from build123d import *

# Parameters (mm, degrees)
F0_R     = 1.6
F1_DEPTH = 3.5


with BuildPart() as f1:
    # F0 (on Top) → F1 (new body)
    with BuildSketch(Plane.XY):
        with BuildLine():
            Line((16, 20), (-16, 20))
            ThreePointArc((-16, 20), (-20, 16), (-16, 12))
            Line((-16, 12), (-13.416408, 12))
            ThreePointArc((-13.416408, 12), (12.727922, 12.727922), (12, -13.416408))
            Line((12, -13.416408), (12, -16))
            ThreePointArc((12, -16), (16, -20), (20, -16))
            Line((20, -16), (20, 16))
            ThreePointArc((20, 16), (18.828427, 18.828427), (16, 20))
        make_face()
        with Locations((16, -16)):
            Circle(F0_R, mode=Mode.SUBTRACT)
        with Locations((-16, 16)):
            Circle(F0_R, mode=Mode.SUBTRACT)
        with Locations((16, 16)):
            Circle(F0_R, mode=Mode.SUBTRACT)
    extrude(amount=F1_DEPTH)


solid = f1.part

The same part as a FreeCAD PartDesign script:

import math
import FreeCAD as App
import Part
import Sketcher

doc = App.newDocument("Part")
body = doc.addObject("PartDesign::Body", "Body")

# Sketch on XY plane
sketch1 = body.newObject("Sketcher::SketchObject", "Sketch")
sketch1.AttachmentSupport = (doc.getObject("XY_Plane"), [""])
sketch1.MapMode = "FlatFace"
sketch1.addGeometry(Part.LineSegment(App.Vector(16, 20, 0), App.Vector(-16, 20, 0)), False)
sketch1.addGeometry(Part.ArcOfCircle(Part.Circle(App.Vector(-16, 16, 0), App.Vector(0, 0, 1), 4), math.radians(90), math.radians(270)), False)
sketch1.addGeometry(Part.LineSegment(App.Vector(-16, 12, 0), App.Vector(-13.4, 12, 0)), False)
sketch1.addGeometry(Part.ArcOfCircle(Part.Circle(App.Vector(0, 0, 0), App.Vector(0, 0, 1), 18), math.radians(-48), math.radians(138)), False)
sketch1.addGeometry(Part.LineSegment(App.Vector(12, -13.4, 0), App.Vector(12, -16, 0)), False)
sketch1.addGeometry(Part.ArcOfCircle(Part.Circle(App.Vector(16, -16, 0), App.Vector(0, 0, 1), 4), math.radians(180), math.radians(360)), False)
sketch1.addGeometry(Part.LineSegment(App.Vector(20, -16, 0), App.Vector(20, 16, 0)), False)
sketch1.addGeometry(Part.ArcOfCircle(Part.Circle(App.Vector(16, 16, 0), App.Vector(0, 0, 1), 4), math.radians(0), math.radians(90)), False)
sketch1.addGeometry(Part.Circle(App.Vector(16, -16, 0), App.Vector(0, 0, 1), 1.6), False)
sketch1.addGeometry(Part.Circle(App.Vector(-16, 16, 0), App.Vector(0, 0, 1), 1.6), False)
sketch1.addGeometry(Part.Circle(App.Vector(16, 16, 0), App.Vector(0, 0, 1), 1.6), False)
sketch1.addConstraint(Sketcher.Constraint("Tangent", 0, 2, 1, 1))
sketch1.addConstraint(Sketcher.Constraint("Tangent", 1, 2, 2, 1))
sketch1.addConstraint(Sketcher.Constraint("Coincident", 2, 2, 3, 2))
sketch1.addConstraint(Sketcher.Constraint("Coincident", 3, 1, 4, 1))
sketch1.addConstraint(Sketcher.Constraint("Tangent", 4, 2, 5, 1))
sketch1.addConstraint(Sketcher.Constraint("Tangent", 5, 2, 6, 1))
sketch1.addConstraint(Sketcher.Constraint("Tangent", 6, 2, 7, 1))
sketch1.addConstraint(Sketcher.Constraint("Tangent", 7, 2, 0, 1))
sketch1.addConstraint(Sketcher.Constraint("Horizontal", 0))
sketch1.addConstraint(Sketcher.Constraint("Horizontal", 2))
sketch1.addConstraint(Sketcher.Constraint("Vertical", 4))
sketch1.addConstraint(Sketcher.Constraint("Vertical", 6))
sketch1.addConstraint(Sketcher.Constraint("Coincident", 3, 3, -1, 1))
sketch1.addConstraint(Sketcher.Constraint("Coincident", 8, 3, 5, 3))
sketch1.addConstraint(Sketcher.Constraint("Coincident", 9, 3, 1, 3))
sketch1.addConstraint(Sketcher.Constraint("Coincident", 10, 3, 7, 3))
sketch1.addConstraint(Sketcher.Constraint("Equal", 1, 5))
sketch1.addConstraint(Sketcher.Constraint("Equal", 5, 7))
sketch1.addConstraint(Sketcher.Constraint("Equal", 8, 9))
sketch1.addConstraint(Sketcher.Constraint("Equal", 9, 10))
sketch1.addConstraint(Sketcher.Constraint("Symmetric", 1, 3, 5, 3, -1, 1))
sketch1.addConstraint(Sketcher.Constraint("Equal", 2, 4))
sketch1.addConstraint(Sketcher.Constraint("Radius", 1, 4.0))
sketch1.addConstraint(Sketcher.Constraint("Radius", 3, 18.0))
sketch1.addConstraint(Sketcher.Constraint("Diameter", 8, 3.2))
sketch1.addConstraint(Sketcher.Constraint("DistanceX", 0, 2, 0, 1, 32.0))
pad1 = body.newObject("PartDesign::Pad", "Pad")
pad1.Profile = sketch1
pad1.Length = 3.5

doc.recompute()
